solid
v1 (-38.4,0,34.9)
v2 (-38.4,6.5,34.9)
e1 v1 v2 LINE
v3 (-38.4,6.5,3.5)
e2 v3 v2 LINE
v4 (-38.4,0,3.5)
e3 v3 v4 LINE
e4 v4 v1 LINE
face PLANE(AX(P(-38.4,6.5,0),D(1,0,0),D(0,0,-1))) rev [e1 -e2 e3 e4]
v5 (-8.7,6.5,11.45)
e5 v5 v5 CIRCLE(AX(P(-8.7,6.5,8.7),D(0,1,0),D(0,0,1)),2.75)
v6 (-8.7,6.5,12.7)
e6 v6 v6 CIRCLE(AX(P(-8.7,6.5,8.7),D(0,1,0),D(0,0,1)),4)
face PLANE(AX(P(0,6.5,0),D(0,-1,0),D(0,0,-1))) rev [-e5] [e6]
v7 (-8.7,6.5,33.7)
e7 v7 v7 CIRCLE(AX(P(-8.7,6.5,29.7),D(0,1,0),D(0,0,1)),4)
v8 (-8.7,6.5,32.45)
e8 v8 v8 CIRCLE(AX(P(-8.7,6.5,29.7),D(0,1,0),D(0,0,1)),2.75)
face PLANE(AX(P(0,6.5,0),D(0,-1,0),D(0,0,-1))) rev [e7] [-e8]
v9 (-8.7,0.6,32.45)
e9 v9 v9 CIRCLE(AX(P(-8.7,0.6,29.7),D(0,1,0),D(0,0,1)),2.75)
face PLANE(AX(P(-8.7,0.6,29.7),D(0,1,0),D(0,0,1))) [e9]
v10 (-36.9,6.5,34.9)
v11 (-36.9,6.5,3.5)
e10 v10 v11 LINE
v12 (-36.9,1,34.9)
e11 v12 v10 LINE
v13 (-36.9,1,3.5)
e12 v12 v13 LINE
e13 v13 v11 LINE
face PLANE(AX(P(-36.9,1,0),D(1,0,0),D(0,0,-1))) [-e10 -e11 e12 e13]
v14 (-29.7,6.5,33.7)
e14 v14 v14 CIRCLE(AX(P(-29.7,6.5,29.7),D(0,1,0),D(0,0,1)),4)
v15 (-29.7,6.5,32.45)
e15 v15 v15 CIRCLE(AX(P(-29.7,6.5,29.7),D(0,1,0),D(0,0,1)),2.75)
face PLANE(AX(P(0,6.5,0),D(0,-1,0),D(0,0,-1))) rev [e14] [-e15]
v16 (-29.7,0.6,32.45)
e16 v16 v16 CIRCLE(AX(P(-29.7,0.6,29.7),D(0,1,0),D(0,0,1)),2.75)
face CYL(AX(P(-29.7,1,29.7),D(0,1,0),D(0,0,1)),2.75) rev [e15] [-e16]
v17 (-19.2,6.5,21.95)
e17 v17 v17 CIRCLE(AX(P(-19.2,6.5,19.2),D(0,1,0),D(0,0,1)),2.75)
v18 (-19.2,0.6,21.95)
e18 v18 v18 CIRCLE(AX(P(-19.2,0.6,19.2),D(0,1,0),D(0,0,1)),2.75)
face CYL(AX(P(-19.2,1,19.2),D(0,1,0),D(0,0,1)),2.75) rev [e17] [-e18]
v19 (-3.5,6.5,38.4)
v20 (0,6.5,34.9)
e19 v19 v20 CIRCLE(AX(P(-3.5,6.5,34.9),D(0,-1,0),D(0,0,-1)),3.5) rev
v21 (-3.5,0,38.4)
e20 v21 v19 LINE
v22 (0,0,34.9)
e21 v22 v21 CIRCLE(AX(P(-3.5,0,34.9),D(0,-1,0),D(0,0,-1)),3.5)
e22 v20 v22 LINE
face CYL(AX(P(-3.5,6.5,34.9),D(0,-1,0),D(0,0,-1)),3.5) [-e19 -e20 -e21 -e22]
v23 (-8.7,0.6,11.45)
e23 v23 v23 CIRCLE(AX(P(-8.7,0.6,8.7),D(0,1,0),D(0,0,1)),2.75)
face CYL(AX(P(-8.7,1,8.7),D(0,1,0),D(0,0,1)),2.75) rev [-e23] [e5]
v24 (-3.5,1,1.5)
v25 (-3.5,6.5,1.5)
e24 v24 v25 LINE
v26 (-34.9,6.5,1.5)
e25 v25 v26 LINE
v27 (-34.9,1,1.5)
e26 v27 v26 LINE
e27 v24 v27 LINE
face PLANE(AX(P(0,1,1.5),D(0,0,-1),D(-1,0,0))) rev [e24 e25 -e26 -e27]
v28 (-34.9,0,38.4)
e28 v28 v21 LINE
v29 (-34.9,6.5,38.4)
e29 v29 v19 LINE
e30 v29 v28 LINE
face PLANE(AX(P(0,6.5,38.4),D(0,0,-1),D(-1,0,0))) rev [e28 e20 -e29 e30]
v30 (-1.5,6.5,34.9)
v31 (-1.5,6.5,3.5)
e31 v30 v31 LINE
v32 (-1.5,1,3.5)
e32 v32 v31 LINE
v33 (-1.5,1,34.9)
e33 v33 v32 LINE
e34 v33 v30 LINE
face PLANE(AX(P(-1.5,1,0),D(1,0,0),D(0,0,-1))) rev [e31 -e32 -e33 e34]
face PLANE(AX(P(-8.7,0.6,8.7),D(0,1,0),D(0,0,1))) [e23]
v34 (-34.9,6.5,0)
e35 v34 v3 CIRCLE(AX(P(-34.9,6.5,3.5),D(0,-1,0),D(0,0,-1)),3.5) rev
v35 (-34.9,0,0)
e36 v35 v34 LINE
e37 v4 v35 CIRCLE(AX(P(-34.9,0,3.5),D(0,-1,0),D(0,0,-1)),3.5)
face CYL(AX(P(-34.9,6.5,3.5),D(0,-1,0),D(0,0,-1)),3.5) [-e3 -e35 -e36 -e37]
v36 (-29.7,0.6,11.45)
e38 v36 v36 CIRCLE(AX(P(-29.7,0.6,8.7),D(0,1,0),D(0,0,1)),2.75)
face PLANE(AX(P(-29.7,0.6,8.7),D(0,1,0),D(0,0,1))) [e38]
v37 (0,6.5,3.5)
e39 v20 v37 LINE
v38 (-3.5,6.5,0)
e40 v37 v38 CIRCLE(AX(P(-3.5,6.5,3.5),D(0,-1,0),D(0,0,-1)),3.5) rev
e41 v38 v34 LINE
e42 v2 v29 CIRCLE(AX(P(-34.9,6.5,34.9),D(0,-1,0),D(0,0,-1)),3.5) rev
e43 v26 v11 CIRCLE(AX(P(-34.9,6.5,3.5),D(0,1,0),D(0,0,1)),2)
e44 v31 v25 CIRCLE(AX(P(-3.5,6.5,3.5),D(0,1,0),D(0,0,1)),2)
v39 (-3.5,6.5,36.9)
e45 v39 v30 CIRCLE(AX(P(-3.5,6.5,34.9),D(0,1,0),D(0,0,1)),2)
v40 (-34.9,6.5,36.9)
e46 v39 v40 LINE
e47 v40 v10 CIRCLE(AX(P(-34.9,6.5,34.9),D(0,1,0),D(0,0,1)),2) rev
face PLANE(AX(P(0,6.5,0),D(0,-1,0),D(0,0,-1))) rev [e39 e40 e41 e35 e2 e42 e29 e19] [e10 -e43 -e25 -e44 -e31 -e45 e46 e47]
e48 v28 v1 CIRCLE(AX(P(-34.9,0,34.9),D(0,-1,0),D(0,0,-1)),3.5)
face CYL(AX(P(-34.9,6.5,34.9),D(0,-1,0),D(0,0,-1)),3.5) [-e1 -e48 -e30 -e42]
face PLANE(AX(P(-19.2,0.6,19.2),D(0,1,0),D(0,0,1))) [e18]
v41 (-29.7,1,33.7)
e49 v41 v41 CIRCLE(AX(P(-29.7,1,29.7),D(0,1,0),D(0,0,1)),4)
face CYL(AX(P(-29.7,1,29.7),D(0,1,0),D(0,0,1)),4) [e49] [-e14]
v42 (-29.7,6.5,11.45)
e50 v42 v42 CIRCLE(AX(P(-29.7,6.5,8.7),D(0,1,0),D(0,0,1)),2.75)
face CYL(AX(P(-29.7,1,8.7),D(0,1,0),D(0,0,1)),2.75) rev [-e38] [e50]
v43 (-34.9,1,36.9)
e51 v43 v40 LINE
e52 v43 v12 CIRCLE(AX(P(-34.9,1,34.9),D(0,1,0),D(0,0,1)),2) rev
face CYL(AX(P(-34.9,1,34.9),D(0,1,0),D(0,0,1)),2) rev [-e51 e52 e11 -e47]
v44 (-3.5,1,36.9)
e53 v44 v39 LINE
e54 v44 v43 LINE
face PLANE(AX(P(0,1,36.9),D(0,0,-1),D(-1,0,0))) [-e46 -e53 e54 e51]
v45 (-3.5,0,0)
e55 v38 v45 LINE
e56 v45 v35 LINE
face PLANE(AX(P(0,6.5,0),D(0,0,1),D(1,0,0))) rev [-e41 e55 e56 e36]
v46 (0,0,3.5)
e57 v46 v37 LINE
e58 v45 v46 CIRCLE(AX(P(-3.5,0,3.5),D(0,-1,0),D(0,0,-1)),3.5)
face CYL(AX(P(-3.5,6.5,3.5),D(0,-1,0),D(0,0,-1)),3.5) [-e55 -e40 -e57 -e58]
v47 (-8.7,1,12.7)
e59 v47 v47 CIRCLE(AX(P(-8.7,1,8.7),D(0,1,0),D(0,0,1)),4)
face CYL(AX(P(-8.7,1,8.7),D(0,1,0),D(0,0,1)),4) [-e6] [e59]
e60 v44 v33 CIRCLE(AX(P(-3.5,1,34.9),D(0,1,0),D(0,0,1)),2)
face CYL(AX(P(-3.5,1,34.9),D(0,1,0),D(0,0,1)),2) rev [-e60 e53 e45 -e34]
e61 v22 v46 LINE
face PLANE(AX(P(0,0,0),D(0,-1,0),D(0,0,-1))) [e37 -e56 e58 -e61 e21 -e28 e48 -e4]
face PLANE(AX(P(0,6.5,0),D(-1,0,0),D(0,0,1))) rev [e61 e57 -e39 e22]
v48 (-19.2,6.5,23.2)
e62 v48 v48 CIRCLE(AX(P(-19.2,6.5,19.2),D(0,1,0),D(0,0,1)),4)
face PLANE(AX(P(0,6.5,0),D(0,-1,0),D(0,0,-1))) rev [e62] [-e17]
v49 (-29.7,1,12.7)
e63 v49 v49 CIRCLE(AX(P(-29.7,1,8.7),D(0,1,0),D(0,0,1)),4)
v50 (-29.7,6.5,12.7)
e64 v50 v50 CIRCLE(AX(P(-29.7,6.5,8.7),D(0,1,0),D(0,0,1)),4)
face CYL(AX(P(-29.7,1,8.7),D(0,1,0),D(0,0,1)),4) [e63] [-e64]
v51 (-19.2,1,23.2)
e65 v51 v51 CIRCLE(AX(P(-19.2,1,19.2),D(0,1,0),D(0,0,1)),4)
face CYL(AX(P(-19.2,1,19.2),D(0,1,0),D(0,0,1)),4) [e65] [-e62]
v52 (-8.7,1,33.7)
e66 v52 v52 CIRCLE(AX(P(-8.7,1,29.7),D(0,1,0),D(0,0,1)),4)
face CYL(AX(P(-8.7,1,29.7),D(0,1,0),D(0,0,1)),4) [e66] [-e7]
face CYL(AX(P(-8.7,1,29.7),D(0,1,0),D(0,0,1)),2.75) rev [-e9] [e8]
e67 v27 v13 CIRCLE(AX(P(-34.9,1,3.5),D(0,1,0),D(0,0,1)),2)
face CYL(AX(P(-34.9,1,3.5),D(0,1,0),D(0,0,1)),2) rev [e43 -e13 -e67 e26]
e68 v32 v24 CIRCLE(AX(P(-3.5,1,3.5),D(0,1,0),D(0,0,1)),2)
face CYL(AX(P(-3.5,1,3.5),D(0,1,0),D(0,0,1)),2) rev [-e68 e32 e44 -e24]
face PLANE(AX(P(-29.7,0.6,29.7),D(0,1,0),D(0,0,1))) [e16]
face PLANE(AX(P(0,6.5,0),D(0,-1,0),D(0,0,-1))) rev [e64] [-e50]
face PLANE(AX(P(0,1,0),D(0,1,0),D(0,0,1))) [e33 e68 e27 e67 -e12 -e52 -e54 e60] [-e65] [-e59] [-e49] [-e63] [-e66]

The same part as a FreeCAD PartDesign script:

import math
import FreeCAD as App
import Part
import Sketcher
from FreeCAD import Vector
Q = App.Units.Quantity


def edges_at(feature, points):
    """Names of the edges that pass closest to the given points."""
    edges = feature.Shape.Edges
    near = lambda p: min(range(len(edges)), key=lambda i: edges[i].distToShape(Part.Vertex(*p))[0])
    return sorted({f"Edge{near(p) + 1}" for p in points})

doc = App.newDocument("Part")
body = doc.addObject("PartDesign::Body", "Body")

sketch1 = body.newObject("Sketcher::SketchObject", "Sketch")
sketch1.AttachmentSupport = (doc.getObject("XZ_Plane"), [""])
sketch1.MapMode = "FlatFace"
sketch1.addGeometry([
    Part.LineSegment(Vector(-38, 0, 0), Vector(-38, 38, 0)),
    Part.LineSegment(Vector(-38, 38, 0), Vector(0, 38, 0)),
    Part.LineSegment(Vector(0, 38, 0), Vector(0, 0, 0)),
    Part.LineSegment(Vector(0, 0, 0), Vector(-38, 0, 0)),
], False)
sketch1.addConstraint([
    Sketcher.Constraint("Coincident", 0, 2, 1, 1),
    Sketcher.Constraint("Coincident", 1, 2, 2, 1),
    Sketcher.Constraint("Coincident", 2, 2, 3, 1),
    Sketcher.Constraint("Coincident", 3, 2, 0, 1),
    Sketcher.Constraint("Vertical", 0),
    Sketcher.Constraint("Horizontal", 1),
    Sketcher.Constraint("Vertical", 2),
    Sketcher.Constraint("Horizontal", 3),
    Sketcher.Constraint("Coincident", 2, 2, -1, 1),
    Sketcher.Constraint("Equal", 3, 0),
    Sketcher.Constraint("DistanceX", 1, 1, 1, 2, Q("38.4 mm")),
])
pad1 = body.newObject("PartDesign::Pad", "Pad")
pad1.Profile = sketch1
pad1.Length = 6.5
pad1.Reversed = True
doc.recompute()

fillet = body.newObject("PartDesign::Fillet", "Fillet")
fillet.Base = (pad1, edges_at(pad1, [
    (0, 3.25, 38.4),
    (-38.4, 3.25, 38.4),
    (-38.4, 3.25, 0),
    (0, 3.25, 0),
]))
fillet.Radius = 3.5

sketch2 = body.newObject("Sketcher::SketchObject", "Sketch001")
sketch2.AttachmentSupport = (doc.getObject("XZ_Plane"), [""])
sketch2.MapMode = "FlatFace"
sketch2.AttachmentOffset = App.Placement(Vector(0, 0, -6.5), App.Rotation())
sketch2.addGeometry([
    Part.LineSegment(Vector(-3.5, 1.5, 0), Vector(-34.9, 1.5, 0)),
    Part.ArcOfCircle(Part.Circle(Vector(-34.9, 3.5, 0), Vector(0, 0, 1), 2), math.radians(-180), math.radians(-90)),
    Part.LineSegment(Vector(-36.9, 3.5, 0), Vector(-36.9, 34.9, 0)),
    Part.ArcOfCircle(Part.Circle(Vector(-34.9, 34.9, 0), Vector(0, 0, 1), 2), math.radians(90), math.radians(180)),
    Part.LineSegment(Vector(-34.9, 36.9, 0), Vector(-3.5, 36.9, 0)),
    Part.ArcOfCircle(Part.Circle(Vector(-3.5, 34.9, 0), Vector(0, 0, 1), 2), math.radians(0), math.radians(90)),
    Part.LineSegment(Vector(-1.5, 34.9, 0), Vector(-1.5, 3.5, 0)),
    Part.ArcOfCircle(Part.Circle(Vector(-3.5, 3.5, 0), Vector(0, 0, 1), 2), math.radians(-90), math.radians(0)),
    Part.Circle(Vector(-29.7, 29.7, 0), Vector(0, 0, 1), 4),
    Part.Circle(Vector(-8.7, 29.7, 0), Vector(0, 0, 1), 4),
    Part.Circle(Vector(-29.7, 8.7, 0), Vector(0, 0, 1), 4),
    Part.Circle(Vector(-19.2, 19.2, 0), Vector(0, 0, 1), 4),
    Part.Circle(Vector(-8.7, 8.7, 0), Vector(0, 0, 1), 4),
    Part.Circle(Vector(-29.7, 8.7, 0), Vector(0, 0, 1), 2.8),
    Part.Circle(Vector(-8.7, 8.7, 0), Vector(0, 0, 1), 2.8),
    Part.Circle(Vector(-19.2, 19.2, 0), Vector(0, 0, 1), 2.8),
    Part.Circle(Vector(-29.7, 29.7, 0), Vector(0, 0, 1), 2.8),
    Part.Circle(Vector(-8.7, 29.7, 0), Vector(0, 0, 1), 2.8),
], False)
sketch2.addConstraint([
    Sketcher.Constraint("Tangent", 0, 2, 1, 2),
    Sketcher.Constraint("Tangent", 1, 1, 2, 1),
    Sketcher.Constraint("Tangent", 2, 2, 3, 2),
    Sketcher.Constraint("Tangent", 3, 1, 4, 1),
    Sketcher.Constraint("Tangent", 4, 2, 5, 2),
    Sketcher.Constraint("Tangent", 5, 1, 6, 1),
    Sketcher.Constraint("Tangent", 6, 2, 7, 2),
    Sketcher.Constraint("Tangent", 7, 1, 0, 1),
    Sketcher.Constraint("Horizontal", 0),
    Sketcher.Constraint("Vertical", 2),
    Sketcher.Constraint("Horizontal", 4),
    Sketcher.Constraint("Vertical", 6),
    Sketcher.Constraint("Coincident", 13, 3, 10, 3),
    Sketcher.Constraint("Coincident", 14, 3, 12, 3),
    Sketcher.Constraint("Coincident", 15, 3, 11, 3),
    Sketcher.Constraint("Coincident", 16, 3, 8, 3),
    Sketcher.Constraint("Coincident", 17, 3, 9, 3),
    Sketcher.Constraint("Equal", 1, 3),
    Sketcher.Constraint("Equal", 3, 5),
    Sketcher.Constraint("Equal", 5, 7),
    Sketcher.Constraint("Equal", 8, 9),
    Sketcher.Constraint("Equal", 9, 10),
    Sketcher.Constraint("Equal", 10, 11),
    Sketcher.Constraint("Equal", 11, 12),
    Sketcher.Constraint("Equal", 13, 14),
    Sketcher.Constraint("Equal", 14, 15),
    Sketcher.Constraint("Equal", 15, 16),
    Sketcher.Constraint("Equal", 16, 17),
    Sketcher.Constraint("Horizontal", 8, 3, 9, 3),
    Sketcher.Constraint("Horizontal", 10, 3, 12, 3),
    Sketcher.Constraint("Vertical", 8, 3, 10, 3),
    Sketcher.Constraint("Vertical", 9, 3, 12, 3),
    Sketcher.Constraint("Equal", 4, 2),
    Sketcher.Constraint("Diameter", 8, Q("8 mm")),
    Sketcher.Constraint("Radius", 1, Q("2 mm")),
    Sketcher.Constraint("Diameter", 13, Q("5.5 mm")),
    Sketcher.Constraint("DistanceX", 0, 2, 0, 1, Q("31.4 mm")),
    Sketcher.Constraint("DistanceX", 8, 3, 9, 3, Q("21 mm")),
    Sketcher.Constraint("DistanceY", 10, 3, 8, 3, Q("21 mm")),
    Sketcher.Constraint("DistanceX", 1, 3, -1, 1, Q("34.9 mm")),
    Sketcher.Constraint("DistanceY", -1, 1, 1, 3, Q("3.5 mm")),
    Sketcher.Constraint("DistanceX", 8, 3, -1, 1, Q("29.7 mm")),
    Sketcher.Constraint("DistanceY", -1, 1, 8, 3, Q("29.7 mm")),
    Sketcher.Constraint("DistanceX", 11, 3, -1, 1, Q("19.2 mm")),
    Sketcher.Constraint("DistanceY", -1, 1, 11, 3, Q("19.2 mm")),
])
pocket1 = body.newObject("PartDesign::Pocket", "Pocket")
pocket1.Profile = sketch2
pocket1.Length = 5.5
pocket1.Reversed = True

sketch3 = body.newObject("Sketcher::SketchObject", "Sketch002")
sketch3.AttachmentSupport = (doc.getObject("XZ_Plane"), [""])
sketch3.MapMode = "FlatFace"
sketch3.AttachmentOffset = App.Placement(Vector(0, 0, -1), App.Rotation())
sketch3.addGeometry([
    Part.Circle(Vector(-29.7, 29.7, 0), Vector(0, 0, 1), 2.8),
    Part.Circle(Vector(-8.7, 29.7, 0), Vector(0, 0, 1), 2.8),
    Part.Circle(Vector(-8.7, 8.7, 0), Vector(0, 0, 1), 2.8),
    Part.Circle(Vector(-19.2, 19.2, 0), Vector(0, 0, 1), 2.8),
    Part.Circle(Vector(-29.7, 8.7, 0), Vector(0, 0, 1), 2.8),
], False)
sketch3.addConstraint([
    Sketcher.Constraint("Equal", 0, 1),
    Sketcher.Constraint("Equal", 1, 2),
    Sketcher.Constraint("Equal", 2, 3),
    Sketcher.Constraint("Equal", 3, 4),
    Sketcher.Constraint("Horizontal", 0, 3, 1, 3),
    Sketcher.Constraint("Horizontal", 2, 3, 4, 3),
    Sketcher.Constraint("Vertical", 1, 3, 2, 3),
    Sketcher.Constraint("Vertical", 0, 3, 4, 3),
    Sketcher.Constraint("Diameter", 0, Q("5.5 mm")),
    Sketcher.Constraint("DistanceX", 0, 3, 1, 3, Q("21 mm")),
    Sketcher.Constraint("DistanceY", 2, 3, 1, 3, Q("21 mm")),
    Sketcher.Constraint("DistanceX", 0, 3, -1, 1, Q("29.7 mm")),
    Sketcher.Constraint("DistanceY", -1, 1, 0, 3, Q("29.7 mm")),
    Sketcher.Constraint("DistanceX", 3, 3, -1, 1, Q("19.2 mm")),
    Sketcher.Constraint("DistanceY", -1, 1, 3, 3, Q("19.2 mm")),
])
pocket2 = body.newObject("PartDesign::Pocket", "Pocket001")
pocket2.Profile = sketch3
pocket2.Length = 0.4
pocket2.Reversed = True

doc.recompute()
